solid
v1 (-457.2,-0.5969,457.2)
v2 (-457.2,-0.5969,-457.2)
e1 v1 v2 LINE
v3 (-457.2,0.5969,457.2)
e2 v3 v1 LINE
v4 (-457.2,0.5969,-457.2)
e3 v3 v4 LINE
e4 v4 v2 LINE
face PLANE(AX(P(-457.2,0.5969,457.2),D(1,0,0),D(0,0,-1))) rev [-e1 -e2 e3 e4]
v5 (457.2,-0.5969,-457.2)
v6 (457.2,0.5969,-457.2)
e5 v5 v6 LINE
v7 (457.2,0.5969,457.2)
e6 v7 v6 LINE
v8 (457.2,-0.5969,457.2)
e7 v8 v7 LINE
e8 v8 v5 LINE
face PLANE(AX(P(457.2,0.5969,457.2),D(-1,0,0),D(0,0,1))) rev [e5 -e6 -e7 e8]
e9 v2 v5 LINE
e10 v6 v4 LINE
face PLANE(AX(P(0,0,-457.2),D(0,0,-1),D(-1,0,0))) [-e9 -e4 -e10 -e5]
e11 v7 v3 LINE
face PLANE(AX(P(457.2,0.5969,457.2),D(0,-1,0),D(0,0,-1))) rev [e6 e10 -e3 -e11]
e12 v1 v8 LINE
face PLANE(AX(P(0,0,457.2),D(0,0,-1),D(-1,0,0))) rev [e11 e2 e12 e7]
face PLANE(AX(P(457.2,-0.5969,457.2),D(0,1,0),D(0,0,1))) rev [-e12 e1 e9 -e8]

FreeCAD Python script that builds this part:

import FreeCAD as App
import Part
import Sketcher
Q = App.Units.Quantity


def add_polygon(sketch, points):
    """Adds a closed chain of lines whose ends are joined by coincident constraints."""
    first, n = sketch.GeometryCount, len(points)
    for a, b in zip(points, points[1:] + points[:1]):
        sketch.addGeometry(Part.LineSegment(App.Vector(*a, 0), App.Vector(*b, 0)), False)
    for i in range(n):
        sketch.addConstraint(Sketcher.Constraint("Coincident", first + i, 2, first + (i + 1) % n, 1))

doc = App.newDocument("Part")
body = doc.addObject("PartDesign::Body", "Body")

sketch1 = body.newObject("Sketcher::SketchObject", "Sketch")
sketch1.AttachmentSupport = (doc.getObject("XY_Plane"), [""])
sketch1.MapMode = "FlatFace"
add_polygon(sketch1, [(-457.2, 0.6), (-457.2, -0.6), (457.2, -0.6), (457.2, 0.6)])
sketch1.addConstraint(Sketcher.Constraint("Vertical", 0))
sketch1.addConstraint(Sketcher.Constraint("Horizontal", 1))
sketch1.addConstraint(Sketcher.Constraint("Vertical", 2))
sketch1.addConstraint(Sketcher.Constraint("Horizontal", 3))
sketch1.addConstraint(Sketcher.Constraint("Symmetric", 0, 2, 2, 2, -1, 1))
sketch1.addConstraint(Sketcher.Constraint("DistanceX", 1, 1, 1, 2, Q("36 in")))
sketch1.addConstraint(Sketcher.Constraint("DistanceY", 0, 2, 0, 1, Q("0.047 in")))
pad1 = body.newObject("PartDesign::Pad", "Pad")
pad1.Profile = sketch1
pad1.Type = "TwoLengths"
pad1.Length = Q("18 in")
pad1.Length2 = Q("18 in")

doc.recompute()
